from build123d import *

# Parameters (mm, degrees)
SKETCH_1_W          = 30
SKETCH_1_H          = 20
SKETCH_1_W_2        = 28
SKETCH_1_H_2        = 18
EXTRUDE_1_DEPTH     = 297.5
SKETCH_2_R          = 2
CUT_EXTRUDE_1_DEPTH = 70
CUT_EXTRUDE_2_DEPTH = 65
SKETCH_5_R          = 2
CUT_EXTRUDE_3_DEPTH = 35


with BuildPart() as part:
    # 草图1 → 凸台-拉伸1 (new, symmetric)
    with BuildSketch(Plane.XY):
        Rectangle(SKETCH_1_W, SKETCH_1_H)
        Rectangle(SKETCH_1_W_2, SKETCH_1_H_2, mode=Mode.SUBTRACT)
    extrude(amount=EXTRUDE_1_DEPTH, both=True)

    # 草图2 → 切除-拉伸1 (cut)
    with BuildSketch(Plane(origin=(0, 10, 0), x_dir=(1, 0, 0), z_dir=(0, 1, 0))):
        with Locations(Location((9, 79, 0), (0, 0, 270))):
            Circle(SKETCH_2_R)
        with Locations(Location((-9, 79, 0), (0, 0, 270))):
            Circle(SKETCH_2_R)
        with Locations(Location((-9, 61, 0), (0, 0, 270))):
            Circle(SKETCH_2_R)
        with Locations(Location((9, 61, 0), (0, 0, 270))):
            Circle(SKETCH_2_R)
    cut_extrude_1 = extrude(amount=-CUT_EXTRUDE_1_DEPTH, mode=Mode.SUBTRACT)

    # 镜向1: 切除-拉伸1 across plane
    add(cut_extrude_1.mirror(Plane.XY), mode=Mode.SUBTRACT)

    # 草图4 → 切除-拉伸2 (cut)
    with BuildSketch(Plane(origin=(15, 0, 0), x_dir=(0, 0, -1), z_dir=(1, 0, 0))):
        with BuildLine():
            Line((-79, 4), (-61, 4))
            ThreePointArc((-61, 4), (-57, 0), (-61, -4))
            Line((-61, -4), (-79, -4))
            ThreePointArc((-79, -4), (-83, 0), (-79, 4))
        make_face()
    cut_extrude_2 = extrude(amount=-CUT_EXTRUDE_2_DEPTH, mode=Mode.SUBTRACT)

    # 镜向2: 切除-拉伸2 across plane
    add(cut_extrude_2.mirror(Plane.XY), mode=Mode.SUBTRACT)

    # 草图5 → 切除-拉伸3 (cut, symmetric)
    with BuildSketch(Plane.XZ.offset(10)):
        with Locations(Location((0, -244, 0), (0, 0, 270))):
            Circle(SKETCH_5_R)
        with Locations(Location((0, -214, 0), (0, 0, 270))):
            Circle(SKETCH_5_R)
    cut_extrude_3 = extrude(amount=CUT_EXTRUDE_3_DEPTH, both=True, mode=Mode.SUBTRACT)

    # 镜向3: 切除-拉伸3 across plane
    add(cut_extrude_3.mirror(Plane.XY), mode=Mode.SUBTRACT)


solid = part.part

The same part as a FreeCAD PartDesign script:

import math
import FreeCAD as App
import Part
import Sketcher
Q = App.Units.Quantity


def add_polygon(sketch, points):
    """Adds a closed chain of lines whose ends are joined by coincident constraints."""
    first, n = sketch.GeometryCount, len(points)
    for a, b in zip(points, points[1:] + points[:1]):
        sketch.addGeometry(Part.LineSegment(App.Vector(*a, 0), App.Vector(*b, 0)), False)
    for i in range(n):
        sketch.addConstraint(Sketcher.Constraint("Coincident", first + i, 2, first + (i + 1) % n, 1))

doc = App.newDocument("Part")
body = doc.addObject("PartDesign::Body", "Body")

# Sketch on XY plane
sketch1 = body.newObject("Sketcher::SketchObject", "Sketch")
sketch1.AttachmentSupport = (doc.getObject("XY_Plane"), [""])
sketch1.MapMode = "FlatFace"
add_polygon(sketch1, [(-15, 10), (-15, -10), (15, -10), (15, 10)])  # lines 0-3
add_polygon(sketch1, [(14, -9), (-14, -9), (-14, 9), (14, 9)])  # lines 4-7
sketch1.addConstraint(Sketcher.Constraint("Vertical", 0))
sketch1.addConstraint(Sketcher.Constraint("Horizontal", 1))
sketch1.addConstraint(Sketcher.Constraint("Vertical", 2))
sketch1.addConstraint(Sketcher.Constraint("Horizontal", 3))
sketch1.addConstraint(Sketcher.Constraint("Horizontal", 4))
sketch1.addConstraint(Sketcher.Constraint("Vertical", 5))
sketch1.addConstraint(Sketcher.Constraint("Horizontal", 6))
sketch1.addConstraint(Sketcher.Constraint("Vertical", 7))
sketch1.addConstraint(Sketcher.Constraint("Symmetric", 0, 2, 2, 2, -1, 1))
sketch1.addConstraint(Sketcher.Constraint("Symmetric", 4, 2, 6, 2, -1, 1))
sketch1.addConstraint(Sketcher.Constraint("DistanceX", 1, 1, 1, 2, Q("30 mm")))
sketch1.addConstraint(Sketcher.Constraint("DistanceX", 4, 2, 4, 1, Q("28 mm")))
sketch1.addConstraint(Sketcher.Constraint("DistanceY", 0, 2, 0, 1, Q("20 mm")))
sketch1.addConstraint(Sketcher.Constraint("DistanceY", 5, 1, 5, 2, Q("18 mm")))
pad1 = body.newObject("PartDesign::Pad", "Pad")
pad1.Profile = sketch1
pad1.Length = 595
pad1.Midplane = True

# Sketch on XZ plane
sketch2 = body.newObject("Sketcher::SketchObject", "Sketch001")
sketch2.AttachmentSupport = (doc.getObject("XZ_Plane"), [""])
sketch2.MapMode = "FlatFace"
sketch2.AttachmentOffset = App.Placement(App.Vector(0, 0, -10), App.Rotation())
sketch2.addGeometry(Part.Circle(App.Vector(9, -79, 0), App.Vector(0, 0, 1), 2), False)
sketch2.addGeometry(Part.Circle(App.Vector(-9, -79, 0), App.Vector(0, 0, 1), 2), False)
sketch2.addGeometry(Part.Circle(App.Vector(-9, -61, 0), App.Vector(0, 0, 1), 2), False)
sketch2.addGeometry(Part.Circle(App.Vector(9, -61, 0), App.Vector(0, 0, 1), 2), False)
sketch2.addConstraint(Sketcher.Constraint("Equal", 0, 1))
sketch2.addConstraint(Sketcher.Constraint("Equal", 1, 2))
sketch2.addConstraint(Sketcher.Constraint("Equal", 2, 3))
sketch2.addConstraint(Sketcher.Constraint("Symmetric", 0, 3, 1, 3, -2))
sketch2.addConstraint(Sketcher.Constraint("Symmetric", 2, 3, 3, 3, -2))
sketch2.addConstraint(Sketcher.Constraint("Vertical", 1, 3, 2, 3))
sketch2.addConstraint(Sketcher.Constraint("Diameter", 0, Q("4 mm")))
sketch2.addConstraint(Sketcher.Constraint("DistanceX", -1, 1, 0, 3, Q("9 mm")))
sketch2.addConstraint(Sketcher.Constraint("DistanceY", 0, 3, -1, 1, Q("79 mm")))
sketch2.addConstraint(Sketcher.Constraint("DistanceY", 2, 3, -1, 1, Q("61 mm")))
pocket1 = body.newObject("PartDesign::Pocket", "Pocket")
pocket1.Profile = sketch2
pocket1.Length = 70
pocket1.Reversed = True
doc.recompute()

mirrored = body.newObject("PartDesign::Mirrored", "Mirrored")
mirrored.Originals = [pocket1]
mirrored.MirrorPlane = (doc.getObject("XY_Plane"), [""])
body.Tip = mirrored

# Sketch on YZ plane
sketch3 = body.newObject("Sketcher::SketchObject", "Sketch002")
sketch3.AttachmentSupport = (doc.getObject("YZ_Plane"), [""])
sketch3.MapMode = "FlatFace"
sketch3.AttachmentOffset = App.Placement(App.Vector(0, 0, 15), App.Rotation())
sketch3.addGeometry(Part.LineSegment(App.Vector(4, 61, 0), App.Vector(4, 79, 0)), False)
sketch3.addGeometry(Part.ArcOfCircle(Part.Circle(App.Vector(0, 79, 0), App.Vector(0, 0, 1), 4), math.radians(0), math.radians(180)), False)
sketch3.addGeometry(Part.LineSegment(App.Vector(-4, 79, 0), App.Vector(-4, 61, 0)), False)
sketch3.addGeometry(Part.ArcOfCircle(Part.Circle(App.Vector(0, 61, 0), App.Vector(0, 0, 1), 4), math.radians(180), math.radians(360)), False)
sketch3.addConstraint(Sketcher.Constraint("Tangent", 0, 2, 1, 1))
sketch3.addConstraint(Sketcher.Constraint("Tangent", 1, 2, 2, 1))
sketch3.addConstraint(Sketcher.Constraint("Tangent", 2, 2, 3, 1))
sketch3.addConstraint(Sketcher.Constraint("Tangent", 3, 2, 0, 1))
sketch3.addConstraint(Sketcher.Constraint("Vertical", 0))
sketch3.addConstraint(Sketcher.Constraint("Vertical", 2))
sketch3.addConstraint(Sketcher.Constraint("PointOnObject", 1, 3, -2))
sketch3.addConstraint(Sketcher.Constraint("Radius", 1, Q("4 mm")))
sketch3.addConstraint(Sketcher.Constraint("DistanceY", 0, 1, 0, 2, Q("18 mm")))
sketch3.addConstraint(Sketcher.Constraint("DistanceY", -1, 1, 1, 3, Q("79 mm")))
pocket2 = body.newObject("PartDesign::Pocket", "Pocket001")
pocket2.Profile = sketch3
pocket2.Length = 65
doc.recompute()

mirrored2 = body.newObject("PartDesign::Mirrored", "Mirrored001")
mirrored2.Originals = [pocket2]
mirrored2.MirrorPlane = (doc.getObject("XY_Plane"), [""])
body.Tip = mirrored2

# Sketch on XZ plane
sketch4 = body.newObject("Sketcher::SketchObject", "Sketch003")
sketch4.AttachmentSupport = (doc.getObject("XZ_Plane"), [""])
sketch4.MapMode = "FlatFace"
sketch4.AttachmentOffset = App.Placement(App.Vector(0, 0, 10), App.Rotation())
sketch4.addGeometry(Part.Circle(App.Vector(0, -244, 0), App.Vector(0, 0, 1), 2), False)
sketch4.addGeometry(Part.Circle(App.Vector(0, -214, 0), App.Vector(0, 0, 1), 2), False)
sketch4.addConstraint(Sketcher.Constraint("Equal", 0, 1))
sketch4.addConstraint(Sketcher.Constraint("PointOnObject", 0, 3, -2))
sketch4.addConstraint(Sketcher.Constraint("PointOnObject", 1, 3, -2))
sketch4.addConstraint(Sketcher.Constraint("Diameter", 0, Q("4 mm")))
sketch4.addConstraint(Sketcher.Constraint("DistanceY", 0, 3, -1, 1, Q("244 mm")))
sketch4.addConstraint(Sketcher.Constraint("DistanceY", 1, 3, -1, 1, Q("214 mm")))
pocket3 = body.newObject("PartDesign::Pocket", "Pocket002")
pocket3.Profile = sketch4
pocket3.Length = 70
pocket3.Midplane = True
doc.recompute()

mirrored3 = body.newObject("PartDesign::Mirrored", "Mirrored002")
mirrored3.Originals = [pocket3]
mirrored3.MirrorPlane = (doc.getObject("XY_Plane"), [""])
body.Tip = mirrored3

doc.recompute()
